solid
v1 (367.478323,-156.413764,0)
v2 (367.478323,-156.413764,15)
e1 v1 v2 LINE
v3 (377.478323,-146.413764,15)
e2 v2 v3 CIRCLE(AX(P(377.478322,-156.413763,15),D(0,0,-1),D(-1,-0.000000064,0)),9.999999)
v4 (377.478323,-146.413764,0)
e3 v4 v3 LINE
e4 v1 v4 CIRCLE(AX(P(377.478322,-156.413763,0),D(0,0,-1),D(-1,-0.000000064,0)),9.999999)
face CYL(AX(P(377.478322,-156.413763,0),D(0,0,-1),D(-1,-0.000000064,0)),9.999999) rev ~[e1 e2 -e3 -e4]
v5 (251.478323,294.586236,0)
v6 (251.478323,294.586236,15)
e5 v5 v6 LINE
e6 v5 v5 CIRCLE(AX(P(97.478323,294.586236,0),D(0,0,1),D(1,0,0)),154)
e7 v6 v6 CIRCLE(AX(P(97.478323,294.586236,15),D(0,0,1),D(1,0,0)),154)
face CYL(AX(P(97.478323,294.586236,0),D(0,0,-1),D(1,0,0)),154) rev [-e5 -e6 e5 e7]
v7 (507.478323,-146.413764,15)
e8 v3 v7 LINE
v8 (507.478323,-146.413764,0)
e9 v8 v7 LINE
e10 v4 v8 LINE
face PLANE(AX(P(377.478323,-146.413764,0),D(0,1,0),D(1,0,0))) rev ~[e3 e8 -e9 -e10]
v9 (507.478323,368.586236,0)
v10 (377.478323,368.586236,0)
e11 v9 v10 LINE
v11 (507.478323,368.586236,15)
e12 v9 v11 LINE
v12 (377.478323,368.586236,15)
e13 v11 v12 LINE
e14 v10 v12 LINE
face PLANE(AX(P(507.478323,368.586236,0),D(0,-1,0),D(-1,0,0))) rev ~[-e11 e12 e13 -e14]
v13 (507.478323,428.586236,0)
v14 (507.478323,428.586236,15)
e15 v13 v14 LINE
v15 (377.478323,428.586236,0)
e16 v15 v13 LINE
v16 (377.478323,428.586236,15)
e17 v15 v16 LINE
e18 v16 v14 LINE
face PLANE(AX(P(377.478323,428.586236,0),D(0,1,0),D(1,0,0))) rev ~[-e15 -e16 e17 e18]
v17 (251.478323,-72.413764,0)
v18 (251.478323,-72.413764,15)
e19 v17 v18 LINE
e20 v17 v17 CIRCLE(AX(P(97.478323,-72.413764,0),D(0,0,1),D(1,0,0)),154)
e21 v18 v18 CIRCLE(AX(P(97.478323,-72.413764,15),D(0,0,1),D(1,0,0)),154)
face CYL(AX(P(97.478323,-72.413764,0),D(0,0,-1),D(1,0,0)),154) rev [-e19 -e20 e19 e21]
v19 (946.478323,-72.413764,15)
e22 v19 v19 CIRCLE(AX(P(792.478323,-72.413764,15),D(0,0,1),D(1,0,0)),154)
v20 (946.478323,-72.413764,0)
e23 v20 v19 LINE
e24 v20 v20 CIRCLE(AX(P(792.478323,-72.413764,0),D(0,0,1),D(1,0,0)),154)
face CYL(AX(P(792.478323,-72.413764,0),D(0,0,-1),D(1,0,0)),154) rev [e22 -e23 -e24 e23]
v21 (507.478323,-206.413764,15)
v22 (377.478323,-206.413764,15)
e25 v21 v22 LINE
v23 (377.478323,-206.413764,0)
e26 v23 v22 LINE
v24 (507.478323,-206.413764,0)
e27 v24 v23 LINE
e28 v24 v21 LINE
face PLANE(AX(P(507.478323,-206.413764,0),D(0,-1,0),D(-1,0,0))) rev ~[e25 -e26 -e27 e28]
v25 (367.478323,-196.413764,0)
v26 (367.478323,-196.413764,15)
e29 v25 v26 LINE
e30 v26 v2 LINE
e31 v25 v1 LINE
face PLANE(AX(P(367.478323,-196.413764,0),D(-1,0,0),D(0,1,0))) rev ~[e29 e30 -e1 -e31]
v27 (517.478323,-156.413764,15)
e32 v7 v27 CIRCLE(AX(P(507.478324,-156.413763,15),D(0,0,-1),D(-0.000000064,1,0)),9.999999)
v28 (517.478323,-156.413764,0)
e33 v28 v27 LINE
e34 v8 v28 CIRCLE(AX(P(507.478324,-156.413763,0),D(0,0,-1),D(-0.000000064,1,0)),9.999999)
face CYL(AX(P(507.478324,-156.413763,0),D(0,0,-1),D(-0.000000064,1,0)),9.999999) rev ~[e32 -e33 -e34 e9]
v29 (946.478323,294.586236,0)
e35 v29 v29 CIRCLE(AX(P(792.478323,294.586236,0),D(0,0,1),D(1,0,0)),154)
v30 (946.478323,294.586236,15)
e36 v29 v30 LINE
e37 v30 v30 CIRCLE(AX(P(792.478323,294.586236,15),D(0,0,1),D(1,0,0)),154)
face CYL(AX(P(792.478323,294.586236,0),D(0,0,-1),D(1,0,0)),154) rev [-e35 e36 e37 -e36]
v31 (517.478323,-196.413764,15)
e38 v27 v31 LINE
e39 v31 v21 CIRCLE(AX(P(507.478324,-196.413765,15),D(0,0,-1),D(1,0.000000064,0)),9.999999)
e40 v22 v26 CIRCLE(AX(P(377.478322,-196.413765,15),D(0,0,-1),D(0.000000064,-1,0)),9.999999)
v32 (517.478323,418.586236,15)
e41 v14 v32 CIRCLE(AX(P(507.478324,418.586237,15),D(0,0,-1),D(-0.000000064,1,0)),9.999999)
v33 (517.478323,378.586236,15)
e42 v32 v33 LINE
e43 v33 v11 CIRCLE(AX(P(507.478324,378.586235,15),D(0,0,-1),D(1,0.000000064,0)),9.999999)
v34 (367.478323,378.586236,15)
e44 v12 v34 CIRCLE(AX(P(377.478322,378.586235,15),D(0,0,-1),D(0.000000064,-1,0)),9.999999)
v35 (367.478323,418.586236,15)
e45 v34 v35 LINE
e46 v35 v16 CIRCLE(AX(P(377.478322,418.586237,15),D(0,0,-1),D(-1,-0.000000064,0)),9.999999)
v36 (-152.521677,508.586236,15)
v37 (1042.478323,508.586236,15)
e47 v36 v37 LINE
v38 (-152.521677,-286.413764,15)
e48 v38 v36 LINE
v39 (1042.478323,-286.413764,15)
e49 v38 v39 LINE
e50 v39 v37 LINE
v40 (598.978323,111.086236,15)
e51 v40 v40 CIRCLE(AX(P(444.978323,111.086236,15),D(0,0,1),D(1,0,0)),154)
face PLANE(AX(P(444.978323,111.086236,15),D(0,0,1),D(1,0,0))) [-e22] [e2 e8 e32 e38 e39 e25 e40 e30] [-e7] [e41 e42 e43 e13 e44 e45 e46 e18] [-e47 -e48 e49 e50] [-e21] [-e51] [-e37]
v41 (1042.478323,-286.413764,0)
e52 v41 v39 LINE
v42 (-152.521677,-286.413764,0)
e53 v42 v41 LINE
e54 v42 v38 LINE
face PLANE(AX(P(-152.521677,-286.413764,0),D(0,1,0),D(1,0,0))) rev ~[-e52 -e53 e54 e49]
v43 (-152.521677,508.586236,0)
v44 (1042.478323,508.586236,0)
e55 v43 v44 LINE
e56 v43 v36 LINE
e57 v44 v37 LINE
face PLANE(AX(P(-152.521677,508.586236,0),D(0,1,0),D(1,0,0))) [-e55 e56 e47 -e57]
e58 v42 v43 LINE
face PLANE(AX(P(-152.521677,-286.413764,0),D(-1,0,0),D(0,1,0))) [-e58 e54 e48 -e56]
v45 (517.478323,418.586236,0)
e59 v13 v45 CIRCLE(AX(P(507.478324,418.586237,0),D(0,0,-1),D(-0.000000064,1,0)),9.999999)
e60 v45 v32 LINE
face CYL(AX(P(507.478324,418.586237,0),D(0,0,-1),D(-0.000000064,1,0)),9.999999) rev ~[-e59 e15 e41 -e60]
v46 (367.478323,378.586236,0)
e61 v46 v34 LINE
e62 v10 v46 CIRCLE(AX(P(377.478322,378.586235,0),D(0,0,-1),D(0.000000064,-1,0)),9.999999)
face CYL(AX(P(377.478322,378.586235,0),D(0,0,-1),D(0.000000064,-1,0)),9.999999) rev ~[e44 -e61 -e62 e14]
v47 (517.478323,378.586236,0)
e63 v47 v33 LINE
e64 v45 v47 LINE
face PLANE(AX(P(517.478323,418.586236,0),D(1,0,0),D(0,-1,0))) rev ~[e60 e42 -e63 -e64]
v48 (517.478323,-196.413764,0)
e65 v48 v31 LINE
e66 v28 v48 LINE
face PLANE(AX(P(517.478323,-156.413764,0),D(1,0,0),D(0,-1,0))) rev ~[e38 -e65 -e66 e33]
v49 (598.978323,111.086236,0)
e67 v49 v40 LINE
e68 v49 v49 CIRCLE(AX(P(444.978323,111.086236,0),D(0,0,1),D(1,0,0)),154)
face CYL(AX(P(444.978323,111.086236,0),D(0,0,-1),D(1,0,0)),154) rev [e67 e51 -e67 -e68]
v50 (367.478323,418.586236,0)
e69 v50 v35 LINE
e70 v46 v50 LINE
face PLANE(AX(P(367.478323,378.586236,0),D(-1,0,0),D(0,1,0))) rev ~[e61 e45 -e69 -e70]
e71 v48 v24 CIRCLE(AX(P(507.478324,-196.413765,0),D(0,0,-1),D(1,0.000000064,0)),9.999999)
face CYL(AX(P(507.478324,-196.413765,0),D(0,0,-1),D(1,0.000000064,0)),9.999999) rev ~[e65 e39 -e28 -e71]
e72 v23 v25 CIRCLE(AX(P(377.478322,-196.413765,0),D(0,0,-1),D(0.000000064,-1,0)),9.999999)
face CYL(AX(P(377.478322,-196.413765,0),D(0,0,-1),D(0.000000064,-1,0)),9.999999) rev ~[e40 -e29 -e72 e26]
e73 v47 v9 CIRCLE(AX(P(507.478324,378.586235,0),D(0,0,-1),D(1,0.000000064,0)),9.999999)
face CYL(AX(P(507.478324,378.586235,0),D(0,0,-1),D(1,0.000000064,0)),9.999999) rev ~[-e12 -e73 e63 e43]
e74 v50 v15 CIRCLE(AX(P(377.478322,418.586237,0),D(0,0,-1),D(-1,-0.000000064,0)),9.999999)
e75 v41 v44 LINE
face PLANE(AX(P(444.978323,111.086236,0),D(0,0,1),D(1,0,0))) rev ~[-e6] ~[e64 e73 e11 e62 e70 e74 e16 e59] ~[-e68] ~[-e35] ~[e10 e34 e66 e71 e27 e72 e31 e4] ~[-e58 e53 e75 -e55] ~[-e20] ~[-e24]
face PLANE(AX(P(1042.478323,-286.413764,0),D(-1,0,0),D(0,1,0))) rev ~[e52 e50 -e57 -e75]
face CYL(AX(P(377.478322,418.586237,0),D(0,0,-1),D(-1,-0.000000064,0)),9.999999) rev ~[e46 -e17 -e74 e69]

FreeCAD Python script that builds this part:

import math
import FreeCAD as App
import Part
import Sketcher
from FreeCAD import Vector
Q = App.Units.Quantity


def add_polygon(sketch, points):
    """Adds a closed chain of lines whose ends are joined by coincident constraints."""
    first, n = sketch.GeometryCount, len(points)
    for a, b in zip(points, points[1:] + points[:1]):
        sketch.addGeometry(Part.LineSegment(App.Vector(*a, 0), App.Vector(*b, 0)), False)
    for i in range(n):
        sketch.addConstraint(Sketcher.Constraint("Coincident", first + i, 2, first + (i + 1) % n, 1))

doc = App.newDocument("Part")
params = doc.addObject("Spreadsheet::Sheet", "Params")
for row, (alias, value) in enumerate([
    ("sketch1_diameter", "308 mm"),
    ("sketch1_radius", "9.999999 mm"),
    ("sketch1_width", "1195 mm"),
    ("sketch1_width2", "130 mm"),
    ("sketch1_height", "795 mm"),
    ("pad1_length", "15 mm"),
], start=1):
    params.set(f"A{row}", alias)
    params.set(f"B{row}", "=" + value)
    params.setAlias(f"B{row}", alias)

body = doc.addObject("PartDesign::Body", "Body")

sketch1 = doc.addObject("Sketcher::SketchObject", "Sketch")
body.addObject(sketch1)
sketch1.AttachmentSupport = (doc.XY_Plane, [""])
sketch1.MapMode = "FlatFace"
add_polygon(sketch1, [(-152.521677, 508.586236), (-152.521677, -286.413764), (1042.478323, -286.413764), (1042.478323, 508.586236)])
sketch1.addGeometry(Part.Circle(Vector(97.478323, -72.413764, 0), Vector(0, 0, 1), 154), False)
sketch1.addGeometry(Part.LineSegment(Vector(367.478323, -196.413764, 0), Vector(367.478323, -156.413764, 0)), False)
sketch1.addGeometry(Part.ArcOfCircle(Part.Circle(Vector(377.478322, -156.413763, 0), Vector(0, 0, 1), 9.999999), math.radians(89.999996), math.radians(180.000004)), False)
sketch1.addGeometry(Part.LineSegment(Vector(377.478323, -146.413764, 0), Vector(507.478323, -146.413764, 0)), False)
sketch1.addGeometry(Part.ArcOfCircle(Part.Circle(Vector(507.478324, -156.413763, 0), Vector(0, 0, 1), 9.999999), math.radians(-0.000004), math.radians(90.000004)), False)
sketch1.addGeometry(Part.LineSegment(Vector(517.478323, -156.413764, 0), Vector(517.478323, -196.413764, 0)), False)
sketch1.addGeometry(Part.ArcOfCircle(Part.Circle(Vector(507.478324, -196.413765, 0), Vector(0, 0, 1), 9.999999), math.radians(-90.000004), math.radians(0.000004)), False)
sketch1.addGeometry(Part.LineSegment(Vector(507.478323, -206.413764, 0), Vector(377.478323, -206.413764, 0)), False)
sketch1.addGeometry(Part.ArcOfCircle(Part.Circle(Vector(377.478322, -196.413765, 0), Vector(0, 0, 1), 9.999999), math.radians(179.999996), math.radians(270.000004)), False)
sketch1.addGeometry(Part.Circle(Vector(792.478323, -72.413764, 0), Vector(0, 0, 1), 154), False)
sketch1.addGeometry(Part.Circle(Vector(444.978323, 111.086236, 0), Vector(0, 0, 1), 154), False)
sketch1.addGeometry(Part.Circle(Vector(97.478323, 294.586236, 0), Vector(0, 0, 1), 154), False)
sketch1.addGeometry(Part.LineSegment(Vector(367.478323, 378.586236, 0), Vector(367.478323, 418.586236, 0)), False)
sketch1.addGeometry(Part.ArcOfCircle(Part.Circle(Vector(377.478322, 418.586237, 0), Vector(0, 0, 1), 9.999999), math.radians(89.999996), math.radians(180.000004)), False)
sketch1.addGeometry(Part.LineSegment(Vector(377.478323, 428.586236, 0), Vector(507.478323, 428.586236, 0)), False)
sketch1.addGeometry(Part.ArcOfCircle(Part.Circle(Vector(507.478324, 418.586237, 0), Vector(0, 0, 1), 9.999999), math.radians(-0.000004), math.radians(90.000004)), False)
sketch1.addGeometry(Part.LineSegment(Vector(517.478323, 418.586236, 0), Vector(517.478323, 378.586236, 0)), False)
sketch1.addGeometry(Part.ArcOfCircle(Part.Circle(Vector(507.478324, 378.586235, 0), Vector(0, 0, 1), 9.999999), math.radians(-90.000004), math.radians(0.000004)), False)
sketch1.addGeometry(Part.LineSegment(Vector(507.478323, 368.586236, 0), Vector(377.478323, 368.586236, 0)), False)
sketch1.addGeometry(Part.ArcOfCircle(Part.Circle(Vector(377.478322, 378.586235, 0), Vector(0, 0, 1), 9.999999), math.radians(179.999996), math.radians(270.000004)), False)
sketch1.addGeometry(Part.Circle(Vector(792.478323, 294.586236, 0), Vector(0, 0, 1), 154), False)
sketch1.addConstraint([
    Sketcher.Constraint("Tangent", 5, 2, 6, 2),
    Sketcher.Constraint("Tangent", 6, 1, 7, 1),
    Sketcher.Constraint("Tangent", 7, 2, 8, 2),
    Sketcher.Constraint("Tangent", 8, 1, 9, 1),
    Sketcher.Constraint("Tangent", 9, 2, 10, 2),
    Sketcher.Constraint("Tangent", 10, 1, 11, 1),
    Sketcher.Constraint("Tangent", 11, 2, 12, 2),
    Sketcher.Constraint("Tangent", 12, 1, 5, 1),
    Sketcher.Constraint("Tangent", 16, 2, 17, 2),
    Sketcher.Constraint("Tangent", 17, 1, 18, 1),
    Sketcher.Constraint("Tangent", 18, 2, 19, 2),
    Sketcher.Constraint("Tangent", 19, 1, 20, 1),
    Sketcher.Constraint("Tangent", 20, 2, 21, 2),
    Sketcher.Constraint("Tangent", 21, 1, 22, 1),
    Sketcher.Constraint("Tangent", 22, 2, 23, 2),
    Sketcher.Constraint("Tangent", 23, 1, 16, 1),
    Sketcher.Constraint("Vertical", 0),
    Sketcher.Constraint("Horizontal", 1),
    Sketcher.Constraint("Vertical", 2),
    Sketcher.Constraint("Horizontal", 3),
    Sketcher.Constraint("Vertical", 5),
    Sketcher.Constraint("Horizontal", 7),
    Sketcher.Constraint("Vertical", 9),
    Sketcher.Constraint("Horizontal", 11),
    Sketcher.Constraint("Vertical", 16),
    Sketcher.Constraint("Horizontal", 18),
    Sketcher.Constraint("Vertical", 20),
    Sketcher.Constraint("Horizontal", 22),
    Sketcher.Constraint("Equal", 6, 8),
    Sketcher.Constraint("Equal", 8, 10),
    Sketcher.Constraint("Equal", 10, 12),
    Sketcher.Constraint("Equal", 4, 13),
    Sketcher.Constraint("Equal", 13, 14),
    Sketcher.Constraint("Equal", 14, 15),
    Sketcher.Constraint("Equal", 12, 17),
    Sketcher.Constraint("Equal", 17, 19),
    Sketcher.Constraint("Equal", 19, 21),
    Sketcher.Constraint("Equal", 21, 23),
    Sketcher.Constraint("Equal", 15, 24),
    Sketcher.Constraint("Horizontal", 4, 3, 13, 3),
    Sketcher.Constraint("Horizontal", 15, 3, 24, 3),
    Sketcher.Constraint("Vertical", 4, 3, 15, 3),
    Sketcher.Constraint("Vertical", 12, 3, 17, 3),
    Sketcher.Constraint("Vertical", 10, 3, 19, 3),
    Sketcher.Constraint("Vertical", 13, 3, 24, 3),
    Sketcher.Constraint("Equal", 9, 16),
    Sketcher.Constraint("Diameter", 4, Q("308 mm")),
    Sketcher.Constraint("Radius", 6, Q("9.999999 mm")),
    Sketcher.Constraint("DistanceX", 1, 1, 1, 2, Q("1195 mm")),
    Sketcher.Constraint("DistanceX", 7, 1, 7, 2, Q("130 mm")),
    Sketcher.Constraint("DistanceY", 0, 2, 0, 1, Q("795 mm")),
    Sketcher.Constraint("DistanceY", 5, 1, 5, 2, Q("40 mm")),
    Sketcher.Constraint("DistanceX", 4, 3, 6, 3, Q("279.999999 mm")),
    Sketcher.Constraint("DistanceY", 6, 3, 4, 3, Q("83.999999 mm")),
    Sketcher.Constraint("DistanceX", 8, 3, 13, 3, Q("284.999999 mm")),
    Sketcher.Constraint("DistanceY", 4, 3, 15, 3, Q("367 mm")),
    Sketcher.Constraint("DistanceY", 15, 3, 17, 3, Q("124.000001 mm")),
    Sketcher.Constraint("DistanceX", 0, 2, 4, 3, Q("250 mm")),
    Sketcher.Constraint("DistanceY", 0, 2, 4, 3, Q("214 mm")),
    Sketcher.Constraint("DistanceX", 14, 3, 8, 3, Q("62.500001 mm")),
    Sketcher.Constraint("DistanceY", 8, 3, 14, 3, Q("267.499999 mm")),
    Sketcher.Constraint("DistanceX", -1, 1, 4, 3, Q("97.478323 mm")),
    Sketcher.Constraint("DistanceY", 4, 3, -1, 1, Q("72.413764 mm")),
])
sketch1.setExpression("Constraints[50]", "Params.sketch1_diameter")
sketch1.setExpression("Constraints[51]", "Params.sketch1_radius")
sketch1.setExpression("Constraints[52]", "Params.sketch1_width")
sketch1.setExpression("Constraints[53]", "Params.sketch1_width2")
sketch1.setExpression("Constraints[54]", "Params.sketch1_height")
pad1 = doc.addObject("PartDesign::Pad", "Pad")
body.addObject(pad1)
pad1.Profile = sketch1
pad1.setExpression("Length", "Params.pad1_length")

doc.recompute()
